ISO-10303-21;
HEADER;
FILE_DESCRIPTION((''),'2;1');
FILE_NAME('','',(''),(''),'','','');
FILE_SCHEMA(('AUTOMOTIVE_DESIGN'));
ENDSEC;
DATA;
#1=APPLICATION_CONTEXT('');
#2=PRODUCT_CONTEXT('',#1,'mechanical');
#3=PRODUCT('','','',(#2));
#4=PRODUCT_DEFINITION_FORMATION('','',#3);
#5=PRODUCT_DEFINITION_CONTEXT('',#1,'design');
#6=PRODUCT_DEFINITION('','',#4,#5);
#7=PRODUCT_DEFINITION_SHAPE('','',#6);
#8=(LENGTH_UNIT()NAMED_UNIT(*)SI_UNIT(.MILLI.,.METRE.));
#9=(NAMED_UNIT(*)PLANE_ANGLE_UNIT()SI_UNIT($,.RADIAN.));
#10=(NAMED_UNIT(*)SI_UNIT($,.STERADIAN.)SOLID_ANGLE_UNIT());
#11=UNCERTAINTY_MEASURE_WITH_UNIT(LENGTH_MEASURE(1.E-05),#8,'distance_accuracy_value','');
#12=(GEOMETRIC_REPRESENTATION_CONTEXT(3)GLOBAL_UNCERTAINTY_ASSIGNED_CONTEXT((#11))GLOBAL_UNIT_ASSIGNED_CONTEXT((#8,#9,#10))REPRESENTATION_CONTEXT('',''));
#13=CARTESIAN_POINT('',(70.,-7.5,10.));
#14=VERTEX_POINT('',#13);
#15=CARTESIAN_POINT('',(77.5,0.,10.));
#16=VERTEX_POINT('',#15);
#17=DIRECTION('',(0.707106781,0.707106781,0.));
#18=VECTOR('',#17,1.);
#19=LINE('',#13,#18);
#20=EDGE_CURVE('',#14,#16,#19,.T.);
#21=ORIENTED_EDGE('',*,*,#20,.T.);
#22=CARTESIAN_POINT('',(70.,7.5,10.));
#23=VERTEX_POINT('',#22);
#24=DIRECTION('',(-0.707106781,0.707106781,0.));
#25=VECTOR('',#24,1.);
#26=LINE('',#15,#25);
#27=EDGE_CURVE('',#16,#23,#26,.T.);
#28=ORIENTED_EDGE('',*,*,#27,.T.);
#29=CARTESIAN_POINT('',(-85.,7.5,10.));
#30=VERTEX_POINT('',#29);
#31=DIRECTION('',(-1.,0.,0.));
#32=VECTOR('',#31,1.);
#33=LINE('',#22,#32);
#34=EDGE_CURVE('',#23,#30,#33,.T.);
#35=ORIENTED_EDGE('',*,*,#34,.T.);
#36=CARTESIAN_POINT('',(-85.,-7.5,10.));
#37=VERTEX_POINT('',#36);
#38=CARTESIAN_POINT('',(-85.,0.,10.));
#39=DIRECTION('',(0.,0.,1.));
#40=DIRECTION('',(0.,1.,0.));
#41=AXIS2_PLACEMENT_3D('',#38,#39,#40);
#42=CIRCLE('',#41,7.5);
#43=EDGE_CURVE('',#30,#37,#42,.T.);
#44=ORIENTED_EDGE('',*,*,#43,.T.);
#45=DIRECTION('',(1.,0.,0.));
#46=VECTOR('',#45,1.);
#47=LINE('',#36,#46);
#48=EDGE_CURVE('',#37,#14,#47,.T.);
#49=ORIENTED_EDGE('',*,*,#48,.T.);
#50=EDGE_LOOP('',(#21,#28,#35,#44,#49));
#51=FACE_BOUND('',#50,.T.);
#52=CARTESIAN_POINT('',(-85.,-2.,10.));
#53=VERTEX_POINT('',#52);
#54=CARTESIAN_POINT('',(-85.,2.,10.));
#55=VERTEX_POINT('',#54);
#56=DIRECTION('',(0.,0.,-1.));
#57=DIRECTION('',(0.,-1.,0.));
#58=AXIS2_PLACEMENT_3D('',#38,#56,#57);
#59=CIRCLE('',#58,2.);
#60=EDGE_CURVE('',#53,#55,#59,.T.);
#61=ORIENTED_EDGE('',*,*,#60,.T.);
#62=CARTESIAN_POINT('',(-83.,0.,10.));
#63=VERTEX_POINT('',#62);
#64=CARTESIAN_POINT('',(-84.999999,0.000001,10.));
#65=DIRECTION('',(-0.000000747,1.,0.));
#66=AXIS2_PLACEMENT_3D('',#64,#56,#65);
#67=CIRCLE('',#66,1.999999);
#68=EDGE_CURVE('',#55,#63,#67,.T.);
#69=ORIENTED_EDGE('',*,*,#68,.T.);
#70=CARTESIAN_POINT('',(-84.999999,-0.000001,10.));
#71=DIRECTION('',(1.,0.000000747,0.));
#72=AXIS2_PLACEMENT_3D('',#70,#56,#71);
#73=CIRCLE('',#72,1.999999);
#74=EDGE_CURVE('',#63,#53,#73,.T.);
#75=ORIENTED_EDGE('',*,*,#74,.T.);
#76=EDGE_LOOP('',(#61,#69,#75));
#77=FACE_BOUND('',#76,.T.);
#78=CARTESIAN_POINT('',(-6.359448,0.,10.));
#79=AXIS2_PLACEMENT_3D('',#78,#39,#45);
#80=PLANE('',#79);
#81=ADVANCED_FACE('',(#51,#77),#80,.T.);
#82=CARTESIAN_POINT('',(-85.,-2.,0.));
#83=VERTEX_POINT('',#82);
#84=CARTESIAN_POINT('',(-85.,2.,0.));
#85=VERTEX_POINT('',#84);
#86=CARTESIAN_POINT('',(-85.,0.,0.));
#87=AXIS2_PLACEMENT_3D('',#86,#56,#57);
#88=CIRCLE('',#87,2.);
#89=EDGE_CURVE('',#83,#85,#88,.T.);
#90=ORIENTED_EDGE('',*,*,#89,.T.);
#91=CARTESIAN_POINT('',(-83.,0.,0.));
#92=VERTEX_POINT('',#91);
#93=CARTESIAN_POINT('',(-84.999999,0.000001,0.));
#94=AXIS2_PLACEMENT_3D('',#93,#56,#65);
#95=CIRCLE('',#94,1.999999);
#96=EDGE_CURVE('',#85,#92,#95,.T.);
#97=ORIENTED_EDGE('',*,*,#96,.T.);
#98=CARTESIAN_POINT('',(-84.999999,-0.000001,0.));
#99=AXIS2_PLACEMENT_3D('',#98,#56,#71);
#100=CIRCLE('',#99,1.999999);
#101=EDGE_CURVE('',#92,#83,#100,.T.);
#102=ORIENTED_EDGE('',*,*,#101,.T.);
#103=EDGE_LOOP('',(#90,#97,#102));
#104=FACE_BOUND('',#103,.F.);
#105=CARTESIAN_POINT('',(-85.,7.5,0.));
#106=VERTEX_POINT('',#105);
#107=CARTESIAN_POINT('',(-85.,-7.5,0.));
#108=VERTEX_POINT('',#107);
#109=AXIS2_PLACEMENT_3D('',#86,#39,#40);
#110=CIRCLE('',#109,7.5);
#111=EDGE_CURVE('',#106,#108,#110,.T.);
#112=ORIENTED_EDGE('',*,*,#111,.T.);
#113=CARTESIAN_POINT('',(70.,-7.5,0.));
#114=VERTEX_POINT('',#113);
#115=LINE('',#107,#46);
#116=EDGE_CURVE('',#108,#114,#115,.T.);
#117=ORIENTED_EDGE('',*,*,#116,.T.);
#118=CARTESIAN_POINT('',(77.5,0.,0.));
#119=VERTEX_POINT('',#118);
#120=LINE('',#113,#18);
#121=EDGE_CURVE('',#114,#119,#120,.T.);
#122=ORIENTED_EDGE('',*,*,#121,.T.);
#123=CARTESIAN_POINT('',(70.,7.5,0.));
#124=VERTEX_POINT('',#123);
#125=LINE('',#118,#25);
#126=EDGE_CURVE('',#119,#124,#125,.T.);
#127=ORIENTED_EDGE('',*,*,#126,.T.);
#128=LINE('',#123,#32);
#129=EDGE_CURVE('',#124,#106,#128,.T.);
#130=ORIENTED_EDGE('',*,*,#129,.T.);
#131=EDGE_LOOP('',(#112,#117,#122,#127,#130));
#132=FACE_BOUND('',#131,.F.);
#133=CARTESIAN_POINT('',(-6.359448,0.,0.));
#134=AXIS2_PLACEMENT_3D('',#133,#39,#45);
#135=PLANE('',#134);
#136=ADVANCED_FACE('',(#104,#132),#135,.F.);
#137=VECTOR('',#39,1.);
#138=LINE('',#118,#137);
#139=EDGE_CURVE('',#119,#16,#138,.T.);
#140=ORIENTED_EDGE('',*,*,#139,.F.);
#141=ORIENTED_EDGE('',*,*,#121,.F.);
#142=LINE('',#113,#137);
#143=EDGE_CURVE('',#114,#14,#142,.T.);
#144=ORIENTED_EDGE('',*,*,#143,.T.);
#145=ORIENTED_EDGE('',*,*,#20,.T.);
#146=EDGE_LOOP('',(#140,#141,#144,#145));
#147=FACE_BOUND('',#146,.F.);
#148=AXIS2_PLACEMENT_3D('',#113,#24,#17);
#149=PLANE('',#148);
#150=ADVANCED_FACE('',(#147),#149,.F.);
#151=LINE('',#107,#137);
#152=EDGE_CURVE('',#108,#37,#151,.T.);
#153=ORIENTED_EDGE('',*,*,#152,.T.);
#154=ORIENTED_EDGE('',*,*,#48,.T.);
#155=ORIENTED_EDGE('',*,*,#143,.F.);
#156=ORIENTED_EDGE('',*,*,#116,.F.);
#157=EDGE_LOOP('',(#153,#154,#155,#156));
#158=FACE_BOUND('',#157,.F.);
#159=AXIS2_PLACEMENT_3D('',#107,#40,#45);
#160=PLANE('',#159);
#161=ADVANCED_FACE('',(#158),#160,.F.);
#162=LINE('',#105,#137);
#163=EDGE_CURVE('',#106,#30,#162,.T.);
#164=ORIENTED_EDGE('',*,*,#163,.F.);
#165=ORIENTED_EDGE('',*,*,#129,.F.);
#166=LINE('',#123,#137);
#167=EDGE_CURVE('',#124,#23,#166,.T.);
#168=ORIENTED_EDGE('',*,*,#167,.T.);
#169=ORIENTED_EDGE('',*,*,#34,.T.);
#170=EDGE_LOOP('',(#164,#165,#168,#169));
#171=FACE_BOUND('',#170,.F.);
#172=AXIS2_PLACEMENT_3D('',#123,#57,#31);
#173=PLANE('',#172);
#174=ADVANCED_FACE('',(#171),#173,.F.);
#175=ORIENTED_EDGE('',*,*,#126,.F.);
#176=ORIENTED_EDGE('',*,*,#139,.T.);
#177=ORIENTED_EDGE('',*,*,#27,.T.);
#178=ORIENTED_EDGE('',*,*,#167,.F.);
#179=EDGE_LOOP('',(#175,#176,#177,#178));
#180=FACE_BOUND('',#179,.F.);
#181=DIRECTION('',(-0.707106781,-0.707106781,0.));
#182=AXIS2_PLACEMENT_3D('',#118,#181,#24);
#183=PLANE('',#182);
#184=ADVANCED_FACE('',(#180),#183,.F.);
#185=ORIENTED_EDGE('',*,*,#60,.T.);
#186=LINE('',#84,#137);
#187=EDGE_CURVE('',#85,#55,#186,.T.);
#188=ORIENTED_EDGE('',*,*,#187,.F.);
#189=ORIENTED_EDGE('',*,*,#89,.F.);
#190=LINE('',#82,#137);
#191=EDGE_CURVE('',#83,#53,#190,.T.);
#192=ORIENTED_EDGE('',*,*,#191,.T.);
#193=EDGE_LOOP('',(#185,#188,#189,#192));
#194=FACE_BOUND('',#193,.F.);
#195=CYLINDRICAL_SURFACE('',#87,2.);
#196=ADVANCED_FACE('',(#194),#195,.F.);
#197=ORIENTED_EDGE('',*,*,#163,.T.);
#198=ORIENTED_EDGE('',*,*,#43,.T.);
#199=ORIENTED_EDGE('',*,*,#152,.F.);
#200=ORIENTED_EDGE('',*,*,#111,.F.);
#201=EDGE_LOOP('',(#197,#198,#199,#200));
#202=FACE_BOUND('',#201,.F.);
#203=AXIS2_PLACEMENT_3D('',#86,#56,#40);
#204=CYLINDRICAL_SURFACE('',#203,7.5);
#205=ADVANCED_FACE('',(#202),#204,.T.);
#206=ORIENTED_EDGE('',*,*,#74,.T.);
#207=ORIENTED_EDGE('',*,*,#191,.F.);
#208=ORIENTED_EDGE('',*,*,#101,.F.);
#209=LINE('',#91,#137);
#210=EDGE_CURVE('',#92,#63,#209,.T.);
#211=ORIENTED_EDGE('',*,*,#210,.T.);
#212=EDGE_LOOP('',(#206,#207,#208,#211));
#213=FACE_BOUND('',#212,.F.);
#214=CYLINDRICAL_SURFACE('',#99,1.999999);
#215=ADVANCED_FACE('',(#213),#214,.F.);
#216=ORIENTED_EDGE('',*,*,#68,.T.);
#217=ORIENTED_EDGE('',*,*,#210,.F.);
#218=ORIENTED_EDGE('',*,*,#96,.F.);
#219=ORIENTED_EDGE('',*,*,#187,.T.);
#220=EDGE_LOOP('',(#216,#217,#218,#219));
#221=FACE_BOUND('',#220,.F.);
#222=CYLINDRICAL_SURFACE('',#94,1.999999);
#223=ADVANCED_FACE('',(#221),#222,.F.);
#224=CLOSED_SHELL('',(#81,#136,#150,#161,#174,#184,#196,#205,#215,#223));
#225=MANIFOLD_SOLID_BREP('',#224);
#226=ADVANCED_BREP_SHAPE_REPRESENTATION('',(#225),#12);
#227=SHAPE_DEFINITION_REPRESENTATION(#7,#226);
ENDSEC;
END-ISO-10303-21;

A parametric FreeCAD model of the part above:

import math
import FreeCAD as App
import Part
import Sketcher
Q = App.Units.Quantity

doc = App.newDocument("Part")
body = doc.addObject("PartDesign::Body", "Body")

# Sketch on XY plane
sketch1 = body.newObject("Sketcher::SketchObject", "Sketch")
sketch1.AttachmentSupport = (doc.getObject("XY_Plane"), [""])
sketch1.MapMode = "FlatFace"
sketch1.addGeometry(Part.LineSegment(App.Vector(70, 7.5, 0), App.Vector(-85, 7.5, 0)), False)
sketch1.addGeometry(Part.ArcOfCircle(Part.Circle(App.Vector(-85, 0, 0), App.Vector(0, 0, 1), 7.5), math.radians(90), math.radians(270)), False)
sketch1.addGeometry(Part.LineSegment(App.Vector(-85, -7.5, 0), App.Vector(70, -7.5, 0)), False)
sketch1.addGeometry(Part.LineSegment(App.Vector(70, -7.5, 0), App.Vector(77.5, 0, 0)), False)
sketch1.addGeometry(Part.LineSegment(App.Vector(77.5, 0, 0), App.Vector(70, 7.5, 0)), False)
sketch1.addGeometry(Part.ArcOfCircle(Part.Circle(App.Vector(-85, 0, 0), App.Vector(0, 0, 1), 2), math.radians(0), math.radians(90)), False)
sketch1.addGeometry(Part.ArcOfCircle(Part.Circle(App.Vector(-85, 0, 0), App.Vector(0, 0, 1), 2), math.radians(-90), math.radians(0)), False)
sketch1.addGeometry(Part.ArcOfCircle(Part.Circle(App.Vector(-85, 0, 0), App.Vector(0, 0, 1), 2), math.radians(90), math.radians(270)), False)
sketch1.addConstraint(Sketcher.Constraint("Tangent", 0, 2, 1, 1))
sketch1.addConstraint(Sketcher.Constraint("Tangent", 1, 2, 2, 1))
sketch1.addConstraint(Sketcher.Constraint("Coincident", 2, 2, 3, 1))
sketch1.addConstraint(Sketcher.Constraint("Coincident", 3, 2, 4, 1))
sketch1.addConstraint(Sketcher.Constraint("Coincident", 4, 2, 0, 1))
sketch1.addConstraint(Sketcher.Constraint("Tangent", 5, 1, 6, 2))
sketch1.addConstraint(Sketcher.Constraint("Tangent", 6, 1, 7, 2))
sketch1.addConstraint(Sketcher.Constraint("Tangent", 7, 1, 5, 2))
sketch1.addConstraint(Sketcher.Constraint("Horizontal", 0))
sketch1.addConstraint(Sketcher.Constraint("Horizontal", 2))
sketch1.addConstraint(Sketcher.Constraint("Coincident", 5, 3, 1, 3))
sketch1.addConstraint(Sketcher.Constraint("Symmetric", 2, 2, 4, 2, -1))
sketch1.addConstraint(Sketcher.Constraint("PointOnObject", 3, 2, -1))
sketch1.addConstraint(Sketcher.Constraint("PointOnObject", 5, 1, -1))
sketch1.addConstraint(Sketcher.Constraint("Perpendicular", 3, 4))
sketch1.addConstraint(Sketcher.Constraint("Vertical", 1, 2, 6, 1))
sketch1.addConstraint(Sketcher.Constraint("Vertical", 6, 1, 7, 1))
sketch1.addConstraint(Sketcher.Constraint("Radius", 5, Q("1.999999 mm")))
sketch1.addConstraint(Sketcher.Constraint("Radius", 1, Q("7.5 mm")))
sketch1.addConstraint(Sketcher.Constraint("DistanceX", 0, 2, 0, 1, Q("155 mm")))
sketch1.addConstraint(Sketcher.Constraint("DistanceX", 1, 3, -1, 1, Q("85 mm")))
pad1 = body.newObject("PartDesign::Pad", "Pad")
pad1.Profile = sketch1
pad1.Length = 10

doc.recompute()
